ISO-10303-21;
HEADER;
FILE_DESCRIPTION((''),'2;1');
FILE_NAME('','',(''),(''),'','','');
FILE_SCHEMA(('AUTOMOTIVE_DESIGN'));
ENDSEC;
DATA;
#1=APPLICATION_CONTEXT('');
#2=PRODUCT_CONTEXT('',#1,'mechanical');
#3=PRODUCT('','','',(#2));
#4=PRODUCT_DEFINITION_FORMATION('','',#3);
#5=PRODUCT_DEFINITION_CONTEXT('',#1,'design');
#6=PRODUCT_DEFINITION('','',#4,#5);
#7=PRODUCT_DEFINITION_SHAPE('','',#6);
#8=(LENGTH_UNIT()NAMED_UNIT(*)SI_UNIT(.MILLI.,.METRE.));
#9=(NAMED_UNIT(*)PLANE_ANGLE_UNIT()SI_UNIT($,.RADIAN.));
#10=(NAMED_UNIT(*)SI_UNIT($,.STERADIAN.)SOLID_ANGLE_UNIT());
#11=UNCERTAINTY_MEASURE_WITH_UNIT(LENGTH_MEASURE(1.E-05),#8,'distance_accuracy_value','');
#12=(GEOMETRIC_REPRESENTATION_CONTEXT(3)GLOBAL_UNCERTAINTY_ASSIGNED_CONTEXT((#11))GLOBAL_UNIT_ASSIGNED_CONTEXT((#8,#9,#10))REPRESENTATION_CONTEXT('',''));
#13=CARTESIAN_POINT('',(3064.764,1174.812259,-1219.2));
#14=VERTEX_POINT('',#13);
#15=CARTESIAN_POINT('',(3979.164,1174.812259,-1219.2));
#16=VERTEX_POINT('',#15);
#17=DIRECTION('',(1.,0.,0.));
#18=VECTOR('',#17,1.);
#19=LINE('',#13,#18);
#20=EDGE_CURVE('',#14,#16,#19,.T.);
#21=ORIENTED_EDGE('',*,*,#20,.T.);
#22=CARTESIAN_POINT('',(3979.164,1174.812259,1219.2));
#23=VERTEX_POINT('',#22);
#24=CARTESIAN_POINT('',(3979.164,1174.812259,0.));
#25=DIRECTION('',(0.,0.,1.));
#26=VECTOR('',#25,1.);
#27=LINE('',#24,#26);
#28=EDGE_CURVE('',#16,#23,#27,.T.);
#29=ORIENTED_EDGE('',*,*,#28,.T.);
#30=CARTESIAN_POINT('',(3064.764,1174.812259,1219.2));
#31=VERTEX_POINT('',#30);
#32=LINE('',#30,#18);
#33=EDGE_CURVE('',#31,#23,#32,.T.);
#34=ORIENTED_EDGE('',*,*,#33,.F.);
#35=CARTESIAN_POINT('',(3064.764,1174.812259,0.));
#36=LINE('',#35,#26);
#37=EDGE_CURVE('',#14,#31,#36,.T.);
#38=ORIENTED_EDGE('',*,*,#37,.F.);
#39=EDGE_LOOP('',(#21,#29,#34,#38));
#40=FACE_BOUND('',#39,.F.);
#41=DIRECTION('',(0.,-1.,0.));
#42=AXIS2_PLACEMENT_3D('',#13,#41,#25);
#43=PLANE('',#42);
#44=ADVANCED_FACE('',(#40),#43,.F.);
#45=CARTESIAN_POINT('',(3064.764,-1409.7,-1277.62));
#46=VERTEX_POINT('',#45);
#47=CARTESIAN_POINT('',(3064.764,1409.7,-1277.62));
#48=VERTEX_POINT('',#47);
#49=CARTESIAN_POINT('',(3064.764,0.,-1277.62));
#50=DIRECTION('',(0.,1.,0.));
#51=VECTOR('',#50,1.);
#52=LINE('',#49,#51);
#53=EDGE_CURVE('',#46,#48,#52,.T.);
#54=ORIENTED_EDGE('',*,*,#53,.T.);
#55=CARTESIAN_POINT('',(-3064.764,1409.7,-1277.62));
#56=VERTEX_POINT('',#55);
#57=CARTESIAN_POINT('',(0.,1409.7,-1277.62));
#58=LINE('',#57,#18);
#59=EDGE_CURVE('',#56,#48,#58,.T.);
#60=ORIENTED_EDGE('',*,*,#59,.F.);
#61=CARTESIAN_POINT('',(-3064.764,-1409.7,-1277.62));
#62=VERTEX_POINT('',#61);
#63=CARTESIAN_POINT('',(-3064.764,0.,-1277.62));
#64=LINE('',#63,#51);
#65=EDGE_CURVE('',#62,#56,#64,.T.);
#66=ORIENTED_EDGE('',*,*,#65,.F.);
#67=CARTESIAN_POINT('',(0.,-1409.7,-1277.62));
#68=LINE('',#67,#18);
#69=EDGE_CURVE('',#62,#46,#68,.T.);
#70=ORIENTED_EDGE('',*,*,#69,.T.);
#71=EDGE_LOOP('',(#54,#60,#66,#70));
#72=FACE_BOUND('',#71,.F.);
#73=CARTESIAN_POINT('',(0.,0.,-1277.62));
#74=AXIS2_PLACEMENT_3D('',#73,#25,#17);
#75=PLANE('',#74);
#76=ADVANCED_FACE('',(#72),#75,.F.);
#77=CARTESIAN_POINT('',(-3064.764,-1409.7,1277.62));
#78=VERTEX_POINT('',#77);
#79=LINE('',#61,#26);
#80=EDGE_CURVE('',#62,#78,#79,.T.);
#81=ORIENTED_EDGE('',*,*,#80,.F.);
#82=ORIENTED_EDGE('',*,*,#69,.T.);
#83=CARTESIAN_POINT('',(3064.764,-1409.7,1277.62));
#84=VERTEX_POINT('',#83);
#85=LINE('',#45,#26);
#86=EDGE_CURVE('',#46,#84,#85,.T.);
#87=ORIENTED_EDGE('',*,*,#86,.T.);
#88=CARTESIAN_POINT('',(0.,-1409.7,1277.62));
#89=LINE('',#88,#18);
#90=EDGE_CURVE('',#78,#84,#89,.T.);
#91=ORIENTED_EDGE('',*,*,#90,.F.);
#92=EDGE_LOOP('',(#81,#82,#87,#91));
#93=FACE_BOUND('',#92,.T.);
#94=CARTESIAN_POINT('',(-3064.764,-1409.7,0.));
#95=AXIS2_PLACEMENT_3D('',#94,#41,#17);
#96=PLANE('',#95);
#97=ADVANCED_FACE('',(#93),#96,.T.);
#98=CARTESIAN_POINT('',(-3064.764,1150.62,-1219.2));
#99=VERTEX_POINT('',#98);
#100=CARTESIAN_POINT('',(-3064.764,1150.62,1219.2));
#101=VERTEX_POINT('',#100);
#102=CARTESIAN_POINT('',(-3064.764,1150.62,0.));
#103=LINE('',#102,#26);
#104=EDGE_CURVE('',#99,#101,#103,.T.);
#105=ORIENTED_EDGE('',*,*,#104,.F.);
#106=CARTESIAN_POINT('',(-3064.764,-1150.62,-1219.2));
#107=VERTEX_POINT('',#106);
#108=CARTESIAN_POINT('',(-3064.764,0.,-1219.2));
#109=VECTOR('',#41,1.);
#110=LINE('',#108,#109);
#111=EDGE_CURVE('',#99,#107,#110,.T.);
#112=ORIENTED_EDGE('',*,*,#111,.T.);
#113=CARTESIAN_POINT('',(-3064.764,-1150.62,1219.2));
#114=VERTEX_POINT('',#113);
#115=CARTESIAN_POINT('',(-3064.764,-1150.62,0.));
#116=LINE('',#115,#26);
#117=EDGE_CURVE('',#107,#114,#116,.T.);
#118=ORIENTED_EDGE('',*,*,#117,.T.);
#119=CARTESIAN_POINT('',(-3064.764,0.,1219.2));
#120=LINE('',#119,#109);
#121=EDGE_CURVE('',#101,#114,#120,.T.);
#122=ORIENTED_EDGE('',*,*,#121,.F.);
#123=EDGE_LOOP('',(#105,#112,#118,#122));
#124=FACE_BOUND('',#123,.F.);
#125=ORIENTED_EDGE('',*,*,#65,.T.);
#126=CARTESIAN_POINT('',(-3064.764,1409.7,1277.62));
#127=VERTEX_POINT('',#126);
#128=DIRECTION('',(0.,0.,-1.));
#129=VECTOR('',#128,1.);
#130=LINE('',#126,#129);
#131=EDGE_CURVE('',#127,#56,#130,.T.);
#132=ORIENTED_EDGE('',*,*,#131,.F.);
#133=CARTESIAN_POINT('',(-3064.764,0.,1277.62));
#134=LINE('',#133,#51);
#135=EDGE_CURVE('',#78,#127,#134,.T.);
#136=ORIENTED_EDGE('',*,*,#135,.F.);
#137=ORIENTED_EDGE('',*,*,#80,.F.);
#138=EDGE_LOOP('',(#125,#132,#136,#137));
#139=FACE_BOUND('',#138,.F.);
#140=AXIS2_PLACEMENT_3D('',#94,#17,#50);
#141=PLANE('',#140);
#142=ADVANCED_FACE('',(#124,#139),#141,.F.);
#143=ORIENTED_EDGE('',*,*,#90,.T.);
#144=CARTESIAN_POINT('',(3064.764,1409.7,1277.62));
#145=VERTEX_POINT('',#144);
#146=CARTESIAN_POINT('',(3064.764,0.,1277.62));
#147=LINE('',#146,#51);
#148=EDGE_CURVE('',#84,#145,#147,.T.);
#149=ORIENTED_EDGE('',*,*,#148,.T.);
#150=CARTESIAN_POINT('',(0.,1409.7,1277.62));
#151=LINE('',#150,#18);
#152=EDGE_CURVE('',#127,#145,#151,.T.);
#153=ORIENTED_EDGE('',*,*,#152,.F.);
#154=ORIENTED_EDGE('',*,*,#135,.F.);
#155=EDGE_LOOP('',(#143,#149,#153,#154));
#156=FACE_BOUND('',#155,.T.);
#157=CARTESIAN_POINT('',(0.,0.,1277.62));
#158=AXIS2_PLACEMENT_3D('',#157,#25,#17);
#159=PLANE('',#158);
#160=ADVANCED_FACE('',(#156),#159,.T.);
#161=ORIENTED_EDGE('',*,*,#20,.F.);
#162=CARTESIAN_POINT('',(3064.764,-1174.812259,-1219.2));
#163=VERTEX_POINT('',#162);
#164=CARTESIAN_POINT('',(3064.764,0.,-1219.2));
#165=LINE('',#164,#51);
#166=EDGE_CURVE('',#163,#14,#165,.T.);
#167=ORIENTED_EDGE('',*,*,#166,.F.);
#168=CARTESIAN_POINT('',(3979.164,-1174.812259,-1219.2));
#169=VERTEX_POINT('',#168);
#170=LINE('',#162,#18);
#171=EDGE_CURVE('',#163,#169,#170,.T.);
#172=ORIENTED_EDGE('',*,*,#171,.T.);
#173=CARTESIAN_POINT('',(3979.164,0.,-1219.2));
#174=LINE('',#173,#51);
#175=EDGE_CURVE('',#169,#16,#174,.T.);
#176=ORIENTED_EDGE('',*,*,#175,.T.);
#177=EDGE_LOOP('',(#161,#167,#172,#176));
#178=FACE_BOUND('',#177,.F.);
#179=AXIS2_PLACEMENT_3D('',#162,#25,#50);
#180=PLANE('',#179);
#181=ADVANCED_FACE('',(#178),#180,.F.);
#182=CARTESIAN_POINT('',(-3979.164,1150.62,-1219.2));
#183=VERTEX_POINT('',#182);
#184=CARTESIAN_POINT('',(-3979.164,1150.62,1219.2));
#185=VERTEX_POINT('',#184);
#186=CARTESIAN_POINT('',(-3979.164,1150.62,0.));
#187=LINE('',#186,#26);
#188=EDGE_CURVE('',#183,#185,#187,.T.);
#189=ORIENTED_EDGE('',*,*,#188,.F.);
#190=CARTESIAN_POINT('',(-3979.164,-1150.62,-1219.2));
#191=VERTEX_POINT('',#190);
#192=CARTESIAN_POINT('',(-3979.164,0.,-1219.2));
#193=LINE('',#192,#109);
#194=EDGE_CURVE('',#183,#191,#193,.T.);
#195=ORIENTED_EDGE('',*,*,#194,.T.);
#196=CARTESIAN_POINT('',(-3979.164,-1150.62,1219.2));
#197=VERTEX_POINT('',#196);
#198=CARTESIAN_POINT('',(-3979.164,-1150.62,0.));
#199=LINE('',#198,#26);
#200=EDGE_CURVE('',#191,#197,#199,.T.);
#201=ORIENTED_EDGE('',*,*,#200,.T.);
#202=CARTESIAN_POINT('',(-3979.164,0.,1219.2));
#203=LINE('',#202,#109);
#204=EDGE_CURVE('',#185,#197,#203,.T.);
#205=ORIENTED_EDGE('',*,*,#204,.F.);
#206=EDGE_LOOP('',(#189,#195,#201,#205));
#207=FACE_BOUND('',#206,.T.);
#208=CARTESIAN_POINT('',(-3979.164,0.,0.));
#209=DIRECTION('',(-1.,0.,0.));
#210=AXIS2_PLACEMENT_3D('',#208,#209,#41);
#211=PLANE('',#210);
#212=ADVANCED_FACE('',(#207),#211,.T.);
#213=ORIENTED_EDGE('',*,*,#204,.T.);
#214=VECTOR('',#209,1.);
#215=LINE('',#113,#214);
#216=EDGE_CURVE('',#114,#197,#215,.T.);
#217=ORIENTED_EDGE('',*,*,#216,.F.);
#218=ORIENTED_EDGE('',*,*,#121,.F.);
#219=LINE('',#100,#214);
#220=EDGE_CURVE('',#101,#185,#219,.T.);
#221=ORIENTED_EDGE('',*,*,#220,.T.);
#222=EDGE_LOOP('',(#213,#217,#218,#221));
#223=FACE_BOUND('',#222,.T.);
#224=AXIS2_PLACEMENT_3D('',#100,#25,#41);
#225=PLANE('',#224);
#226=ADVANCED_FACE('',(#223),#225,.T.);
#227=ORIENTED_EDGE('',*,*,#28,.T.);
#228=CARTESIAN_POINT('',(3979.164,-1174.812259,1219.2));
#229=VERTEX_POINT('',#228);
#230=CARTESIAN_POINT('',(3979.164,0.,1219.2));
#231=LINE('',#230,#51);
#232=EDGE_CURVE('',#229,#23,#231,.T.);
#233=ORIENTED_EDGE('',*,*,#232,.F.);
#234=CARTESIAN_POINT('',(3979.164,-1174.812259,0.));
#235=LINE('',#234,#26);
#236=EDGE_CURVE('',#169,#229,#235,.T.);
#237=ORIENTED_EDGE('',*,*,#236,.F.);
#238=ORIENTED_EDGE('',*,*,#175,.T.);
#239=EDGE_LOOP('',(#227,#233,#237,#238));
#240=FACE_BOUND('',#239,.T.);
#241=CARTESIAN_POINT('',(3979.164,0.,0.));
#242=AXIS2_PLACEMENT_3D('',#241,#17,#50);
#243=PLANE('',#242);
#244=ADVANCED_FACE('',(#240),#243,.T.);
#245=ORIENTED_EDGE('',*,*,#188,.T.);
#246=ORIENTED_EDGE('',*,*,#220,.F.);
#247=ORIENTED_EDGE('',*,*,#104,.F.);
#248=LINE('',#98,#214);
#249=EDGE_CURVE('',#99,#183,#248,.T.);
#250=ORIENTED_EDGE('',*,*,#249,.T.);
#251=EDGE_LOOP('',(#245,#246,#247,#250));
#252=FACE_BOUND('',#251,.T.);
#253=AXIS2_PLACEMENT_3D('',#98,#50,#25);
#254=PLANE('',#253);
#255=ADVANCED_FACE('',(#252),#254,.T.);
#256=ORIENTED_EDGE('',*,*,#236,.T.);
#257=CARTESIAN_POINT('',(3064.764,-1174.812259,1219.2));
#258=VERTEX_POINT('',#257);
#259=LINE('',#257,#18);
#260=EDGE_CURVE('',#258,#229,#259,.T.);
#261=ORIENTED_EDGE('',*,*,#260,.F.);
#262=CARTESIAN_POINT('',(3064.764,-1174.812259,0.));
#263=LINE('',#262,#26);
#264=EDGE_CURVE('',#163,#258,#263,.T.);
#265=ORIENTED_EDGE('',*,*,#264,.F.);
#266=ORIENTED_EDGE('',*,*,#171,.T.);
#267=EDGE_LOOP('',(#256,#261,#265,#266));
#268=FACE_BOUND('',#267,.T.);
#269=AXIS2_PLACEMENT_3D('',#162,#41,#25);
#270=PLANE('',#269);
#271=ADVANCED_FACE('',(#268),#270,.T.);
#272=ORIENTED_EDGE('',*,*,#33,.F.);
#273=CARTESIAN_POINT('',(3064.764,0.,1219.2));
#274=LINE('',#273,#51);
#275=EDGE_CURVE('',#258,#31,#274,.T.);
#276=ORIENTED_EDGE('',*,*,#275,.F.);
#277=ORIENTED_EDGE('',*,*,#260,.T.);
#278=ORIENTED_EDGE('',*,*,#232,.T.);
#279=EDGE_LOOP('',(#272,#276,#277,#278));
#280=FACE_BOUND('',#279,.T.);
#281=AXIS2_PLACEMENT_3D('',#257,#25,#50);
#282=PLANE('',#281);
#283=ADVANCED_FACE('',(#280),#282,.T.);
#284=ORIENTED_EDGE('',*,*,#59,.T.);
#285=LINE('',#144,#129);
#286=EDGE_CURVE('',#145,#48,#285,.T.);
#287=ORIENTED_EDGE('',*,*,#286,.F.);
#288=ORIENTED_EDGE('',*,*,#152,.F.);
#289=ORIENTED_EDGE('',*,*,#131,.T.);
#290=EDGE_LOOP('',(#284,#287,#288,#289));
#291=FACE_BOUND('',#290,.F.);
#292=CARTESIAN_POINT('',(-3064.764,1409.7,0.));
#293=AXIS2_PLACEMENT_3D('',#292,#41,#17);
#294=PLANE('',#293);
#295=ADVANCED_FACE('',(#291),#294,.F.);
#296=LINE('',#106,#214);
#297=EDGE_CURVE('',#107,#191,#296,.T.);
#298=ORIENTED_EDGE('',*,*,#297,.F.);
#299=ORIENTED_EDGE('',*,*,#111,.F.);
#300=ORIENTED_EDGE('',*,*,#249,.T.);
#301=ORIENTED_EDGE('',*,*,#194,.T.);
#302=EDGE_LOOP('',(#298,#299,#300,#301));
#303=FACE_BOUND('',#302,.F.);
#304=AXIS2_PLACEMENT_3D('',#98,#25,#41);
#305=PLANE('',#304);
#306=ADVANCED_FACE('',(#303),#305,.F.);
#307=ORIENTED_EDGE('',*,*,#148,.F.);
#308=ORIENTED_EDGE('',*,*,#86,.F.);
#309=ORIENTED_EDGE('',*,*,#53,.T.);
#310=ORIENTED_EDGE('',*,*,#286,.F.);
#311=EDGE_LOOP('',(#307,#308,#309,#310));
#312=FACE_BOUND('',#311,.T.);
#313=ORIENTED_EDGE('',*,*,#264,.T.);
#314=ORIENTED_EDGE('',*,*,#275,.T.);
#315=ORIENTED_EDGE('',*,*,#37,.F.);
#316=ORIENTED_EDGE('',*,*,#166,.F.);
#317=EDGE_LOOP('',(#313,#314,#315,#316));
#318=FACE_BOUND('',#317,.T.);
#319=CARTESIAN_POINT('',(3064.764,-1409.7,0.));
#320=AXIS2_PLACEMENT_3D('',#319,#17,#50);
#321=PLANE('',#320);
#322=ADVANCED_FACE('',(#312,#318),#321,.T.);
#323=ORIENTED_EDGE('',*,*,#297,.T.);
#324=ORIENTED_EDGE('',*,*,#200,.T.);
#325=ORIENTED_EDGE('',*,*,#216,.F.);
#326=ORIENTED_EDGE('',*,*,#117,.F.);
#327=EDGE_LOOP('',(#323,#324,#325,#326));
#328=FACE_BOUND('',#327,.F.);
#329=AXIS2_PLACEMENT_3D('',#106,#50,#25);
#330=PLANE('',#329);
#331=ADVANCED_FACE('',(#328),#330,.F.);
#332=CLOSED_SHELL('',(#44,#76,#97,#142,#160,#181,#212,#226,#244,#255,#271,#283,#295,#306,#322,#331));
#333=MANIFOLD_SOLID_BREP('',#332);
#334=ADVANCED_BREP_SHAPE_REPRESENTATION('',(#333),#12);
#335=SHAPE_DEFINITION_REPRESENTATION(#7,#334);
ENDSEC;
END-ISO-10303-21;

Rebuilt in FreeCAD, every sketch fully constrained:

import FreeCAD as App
import Part
import Sketcher
Q = App.Units.Quantity

doc = App.newDocument("Part")
body = doc.addObject("PartDesign::Body", "Body")

# Sketch on XY plane
sketch1 = body.newObject("Sketcher::SketchObject", "Sketch")
sketch1.AttachmentSupport = (doc.getObject("XY_Plane"), [""])
sketch1.MapMode = "FlatFace"
sketch1.addGeometry([
    Part.LineSegment(App.Vector(-3065, 1410, 0), App.Vector(-3065, -1410, 0)),
    Part.LineSegment(App.Vector(-3065, -1410, 0), App.Vector(3065, -1410, 0)),
    Part.LineSegment(App.Vector(3065, -1410, 0), App.Vector(3065, 1410, 0)),
    Part.LineSegment(App.Vector(3065, 1410, 0), App.Vector(-3065, 1410, 0)),
], False)
sketch1.addConstraint([
    Sketcher.Constraint("Coincident", 0, 2, 1, 1),
    Sketcher.Constraint("Coincident", 1, 2, 2, 1),
    Sketcher.Constraint("Coincident", 2, 2, 3, 1),
    Sketcher.Constraint("Coincident", 3, 2, 0, 1),
    Sketcher.Constraint("Vertical", 0),
    Sketcher.Constraint("Horizontal", 1),
    Sketcher.Constraint("Vertical", 2),
    Sketcher.Constraint("Horizontal", 3),
    Sketcher.Constraint("Symmetric", 0, 2, 2, 2, -1, 1),
    Sketcher.Constraint("DistanceY", 0, 2, 0, 1, Q("111 in")),
    Sketcher.Constraint("DistanceX", 1, 1, 1, 2, Q("241.32 in")),
])
pad1 = body.newObject("PartDesign::Pad", "Pad")
pad1.Profile = sketch1
pad1.Length = Q("100.6 in")
pad1.Midplane = True

# Sketch on YZ plane
sketch2 = body.newObject("Sketcher::SketchObject", "Sketch001")
sketch2.AttachmentSupport = (doc.getObject("YZ_Plane"), [""])
sketch2.MapMode = "FlatFace"
sketch2.AttachmentOffset = App.Placement(App.Vector(0, 0, 120.66 * 25.4), App.Rotation())
sketch2.addGeometry([
    Part.LineSegment(App.Vector(-1175, 1219, 0), App.Vector(-1175, -1219, 0)),
    Part.LineSegment(App.Vector(-1175, -1219, 0), App.Vector(1175, -1219, 0)),
    Part.LineSegment(App.Vector(1175, -1219, 0), App.Vector(1175, 1219, 0)),
    Part.LineSegment(App.Vector(1175, 1219, 0), App.Vector(-1175, 1219, 0)),
], False)
sketch2.addConstraint([
    Sketcher.Constraint("Coincident", 0, 2, 1, 1),
    Sketcher.Constraint("Coincident", 1, 2, 2, 1),
    Sketcher.Constraint("Coincident", 2, 2, 3, 1),
    Sketcher.Constraint("Coincident", 3, 2, 0, 1),
    Sketcher.Constraint("Vertical", 0),
    Sketcher.Constraint("Horizontal", 1),
    Sketcher.Constraint("Vertical", 2),
    Sketcher.Constraint("Horizontal", 3),
    Sketcher.Constraint("Symmetric", 0, 2, 2, 2, -1, 1),
    Sketcher.Constraint("DistanceY", 0, 2, 0, 1, Q("96 in")),
    Sketcher.Constraint("DistanceX", 1, 1, 1, 2, Q("2349.624518 mm")),
])
pad2 = body.newObject("PartDesign::Pad", "Pad001")
pad2.Profile = sketch2
pad2.Length = Q("36 in")

# Sketch on YZ plane
sketch3 = body.newObject("Sketcher::SketchObject", "Sketch002")
sketch3.AttachmentSupport = (doc.getObject("YZ_Plane"), [""])
sketch3.MapMode = "FlatFace"
sketch3.AttachmentOffset = App.Placement(App.Vector(0, 0, -120.66 * 25.4), App.Rotation())
sketch3.addGeometry([
    Part.LineSegment(App.Vector(1151, 1219, 0), App.Vector(1151, -1219, 0)),
    Part.LineSegment(App.Vector(1151, -1219, 0), App.Vector(-1151, -1219, 0)),
    Part.LineSegment(App.Vector(-1151, -1219, 0), App.Vector(-1151, 1219, 0)),
    Part.LineSegment(App.Vector(-1151, 1219, 0), App.Vector(1151, 1219, 0)),
], False)
sketch3.addConstraint([
    Sketcher.Constraint("Coincident", 0, 2, 1, 1),
    Sketcher.Constraint("Coincident", 1, 2, 2, 1),
    Sketcher.Constraint("Coincident", 2, 2, 3, 1),
    Sketcher.Constraint("Coincident", 3, 2, 0, 1),
    Sketcher.Constraint("Vertical", 0),
    Sketcher.Constraint("Horizontal", 1),
    Sketcher.Constraint("Vertical", 2),
    Sketcher.Constraint("Horizontal", 3),
    Sketcher.Constraint("Symmetric", 0, 2, 2, 2, -1, 1),
    Sketcher.Constraint("DistanceY", 0, 2, 0, 1, Q("96 in")),
    Sketcher.Constraint("DistanceX", 1, 2, 1, 1, Q("90.6 in")),
])
pad3 = body.newObject("PartDesign::Pad", "Pad002")
pad3.Profile = sketch3
pad3.Length = Q("36 in")
pad3.Reversed = True

doc.recompute()
